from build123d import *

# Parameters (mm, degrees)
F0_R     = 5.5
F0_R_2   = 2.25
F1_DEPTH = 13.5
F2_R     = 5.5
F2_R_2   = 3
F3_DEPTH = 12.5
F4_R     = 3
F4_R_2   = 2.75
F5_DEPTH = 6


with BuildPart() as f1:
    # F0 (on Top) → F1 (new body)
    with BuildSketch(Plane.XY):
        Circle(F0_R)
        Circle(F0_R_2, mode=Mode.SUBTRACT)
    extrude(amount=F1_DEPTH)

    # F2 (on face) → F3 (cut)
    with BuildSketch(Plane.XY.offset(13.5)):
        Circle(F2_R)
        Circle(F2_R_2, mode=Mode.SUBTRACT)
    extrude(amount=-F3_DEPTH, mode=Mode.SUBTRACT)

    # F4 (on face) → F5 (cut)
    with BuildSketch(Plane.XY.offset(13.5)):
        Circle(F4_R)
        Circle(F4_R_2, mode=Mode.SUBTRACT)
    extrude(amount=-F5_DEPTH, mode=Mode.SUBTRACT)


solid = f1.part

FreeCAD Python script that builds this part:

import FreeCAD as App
import Part
import Sketcher
from FreeCAD import Vector

doc = App.newDocument("Part")
body = doc.addObject("PartDesign::Body", "Body")

# Sketch on XY plane
sketch1 = body.newObject("Sketcher::SketchObject", "Sketch")
sketch1.AttachmentSupport = (doc.getObject("XY_Plane"), [""])
sketch1.MapMode = "FlatFace"
sketch1.addGeometry(Part.Circle(Vector(0, 0, 0), Vector(0, 0, 1), 5.5), False)
sketch1.addGeometry(Part.Circle(Vector(0, 0, 0), Vector(0, 0, 1), 2.2), False)
sketch1.addConstraint(Sketcher.Constraint("Coincident", 0, 3, -1, 1))
sketch1.addConstraint(Sketcher.Constraint("Coincident", 1, 3, -1, 1))
sketch1.addConstraint(Sketcher.Constraint("Diameter", 0, 11.0))
sketch1.addConstraint(Sketcher.Constraint("Diameter", 1, 4.5))
pad1 = body.newObject("PartDesign::Pad", "Pad")
pad1.Profile = sketch1
pad1.Length = 13.5

# Sketch on XY plane
sketch2 = body.newObject("Sketcher::SketchObject", "Sketch001")
sketch2.AttachmentSupport = (doc.getObject("XY_Plane"), [""])
sketch2.MapMode = "FlatFace"
sketch2.AttachmentOffset = App.Placement(Vector(0, 0, 13.5), App.Rotation())
sketch2.addGeometry(Part.Circle(Vector(0, 0, 0), Vector(0, 0, 1), 5.5), False)
sketch2.addGeometry(Part.Circle(Vector(0, 0, 0), Vector(0, 0, 1), 3), False)
sketch2.addConstraint(Sketcher.Constraint("Coincident", 0, 3, -1, 1))
sketch2.addConstraint(Sketcher.Constraint("Coincident", 1, 3, -1, 1))
sketch2.addConstraint(Sketcher.Constraint("Diameter", 0, 11.0))
sketch2.addConstraint(Sketcher.Constraint("Diameter", 1, 6.0))
pocket1 = body.newObject("PartDesign::Pocket", "Pocket")
pocket1.Profile = sketch2
pocket1.Length = 12.5

# Sketch on XY plane
sketch3 = body.newObject("Sketcher::SketchObject", "Sketch002")
sketch3.AttachmentSupport = (doc.getObject("XY_Plane"), [""])
sketch3.MapMode = "FlatFace"
sketch3.AttachmentOffset = App.Placement(Vector(0, 0, 13.5), App.Rotation())
sketch3.addGeometry(Part.Circle(Vector(0, 0, 0), Vector(0, 0, 1), 3), False)
sketch3.addGeometry(Part.Circle(Vector(0, 0, 0), Vector(0, 0, 1), 2.8), False)
sketch3.addConstraint(Sketcher.Constraint("Coincident", 0, 3, -1, 1))
sketch3.addConstraint(Sketcher.Constraint("Coincident", 1, 3, -1, 1))
sketch3.addConstraint(Sketcher.Constraint("Diameter", 0, 6.0))
sketch3.addConstraint(Sketcher.Constraint("Diameter", 1, 5.5))
pocket2 = body.newObject("PartDesign::Pocket", "Pocket001")
pocket2.Profile = sketch3
pocket2.Length = 6

doc.recompute()
